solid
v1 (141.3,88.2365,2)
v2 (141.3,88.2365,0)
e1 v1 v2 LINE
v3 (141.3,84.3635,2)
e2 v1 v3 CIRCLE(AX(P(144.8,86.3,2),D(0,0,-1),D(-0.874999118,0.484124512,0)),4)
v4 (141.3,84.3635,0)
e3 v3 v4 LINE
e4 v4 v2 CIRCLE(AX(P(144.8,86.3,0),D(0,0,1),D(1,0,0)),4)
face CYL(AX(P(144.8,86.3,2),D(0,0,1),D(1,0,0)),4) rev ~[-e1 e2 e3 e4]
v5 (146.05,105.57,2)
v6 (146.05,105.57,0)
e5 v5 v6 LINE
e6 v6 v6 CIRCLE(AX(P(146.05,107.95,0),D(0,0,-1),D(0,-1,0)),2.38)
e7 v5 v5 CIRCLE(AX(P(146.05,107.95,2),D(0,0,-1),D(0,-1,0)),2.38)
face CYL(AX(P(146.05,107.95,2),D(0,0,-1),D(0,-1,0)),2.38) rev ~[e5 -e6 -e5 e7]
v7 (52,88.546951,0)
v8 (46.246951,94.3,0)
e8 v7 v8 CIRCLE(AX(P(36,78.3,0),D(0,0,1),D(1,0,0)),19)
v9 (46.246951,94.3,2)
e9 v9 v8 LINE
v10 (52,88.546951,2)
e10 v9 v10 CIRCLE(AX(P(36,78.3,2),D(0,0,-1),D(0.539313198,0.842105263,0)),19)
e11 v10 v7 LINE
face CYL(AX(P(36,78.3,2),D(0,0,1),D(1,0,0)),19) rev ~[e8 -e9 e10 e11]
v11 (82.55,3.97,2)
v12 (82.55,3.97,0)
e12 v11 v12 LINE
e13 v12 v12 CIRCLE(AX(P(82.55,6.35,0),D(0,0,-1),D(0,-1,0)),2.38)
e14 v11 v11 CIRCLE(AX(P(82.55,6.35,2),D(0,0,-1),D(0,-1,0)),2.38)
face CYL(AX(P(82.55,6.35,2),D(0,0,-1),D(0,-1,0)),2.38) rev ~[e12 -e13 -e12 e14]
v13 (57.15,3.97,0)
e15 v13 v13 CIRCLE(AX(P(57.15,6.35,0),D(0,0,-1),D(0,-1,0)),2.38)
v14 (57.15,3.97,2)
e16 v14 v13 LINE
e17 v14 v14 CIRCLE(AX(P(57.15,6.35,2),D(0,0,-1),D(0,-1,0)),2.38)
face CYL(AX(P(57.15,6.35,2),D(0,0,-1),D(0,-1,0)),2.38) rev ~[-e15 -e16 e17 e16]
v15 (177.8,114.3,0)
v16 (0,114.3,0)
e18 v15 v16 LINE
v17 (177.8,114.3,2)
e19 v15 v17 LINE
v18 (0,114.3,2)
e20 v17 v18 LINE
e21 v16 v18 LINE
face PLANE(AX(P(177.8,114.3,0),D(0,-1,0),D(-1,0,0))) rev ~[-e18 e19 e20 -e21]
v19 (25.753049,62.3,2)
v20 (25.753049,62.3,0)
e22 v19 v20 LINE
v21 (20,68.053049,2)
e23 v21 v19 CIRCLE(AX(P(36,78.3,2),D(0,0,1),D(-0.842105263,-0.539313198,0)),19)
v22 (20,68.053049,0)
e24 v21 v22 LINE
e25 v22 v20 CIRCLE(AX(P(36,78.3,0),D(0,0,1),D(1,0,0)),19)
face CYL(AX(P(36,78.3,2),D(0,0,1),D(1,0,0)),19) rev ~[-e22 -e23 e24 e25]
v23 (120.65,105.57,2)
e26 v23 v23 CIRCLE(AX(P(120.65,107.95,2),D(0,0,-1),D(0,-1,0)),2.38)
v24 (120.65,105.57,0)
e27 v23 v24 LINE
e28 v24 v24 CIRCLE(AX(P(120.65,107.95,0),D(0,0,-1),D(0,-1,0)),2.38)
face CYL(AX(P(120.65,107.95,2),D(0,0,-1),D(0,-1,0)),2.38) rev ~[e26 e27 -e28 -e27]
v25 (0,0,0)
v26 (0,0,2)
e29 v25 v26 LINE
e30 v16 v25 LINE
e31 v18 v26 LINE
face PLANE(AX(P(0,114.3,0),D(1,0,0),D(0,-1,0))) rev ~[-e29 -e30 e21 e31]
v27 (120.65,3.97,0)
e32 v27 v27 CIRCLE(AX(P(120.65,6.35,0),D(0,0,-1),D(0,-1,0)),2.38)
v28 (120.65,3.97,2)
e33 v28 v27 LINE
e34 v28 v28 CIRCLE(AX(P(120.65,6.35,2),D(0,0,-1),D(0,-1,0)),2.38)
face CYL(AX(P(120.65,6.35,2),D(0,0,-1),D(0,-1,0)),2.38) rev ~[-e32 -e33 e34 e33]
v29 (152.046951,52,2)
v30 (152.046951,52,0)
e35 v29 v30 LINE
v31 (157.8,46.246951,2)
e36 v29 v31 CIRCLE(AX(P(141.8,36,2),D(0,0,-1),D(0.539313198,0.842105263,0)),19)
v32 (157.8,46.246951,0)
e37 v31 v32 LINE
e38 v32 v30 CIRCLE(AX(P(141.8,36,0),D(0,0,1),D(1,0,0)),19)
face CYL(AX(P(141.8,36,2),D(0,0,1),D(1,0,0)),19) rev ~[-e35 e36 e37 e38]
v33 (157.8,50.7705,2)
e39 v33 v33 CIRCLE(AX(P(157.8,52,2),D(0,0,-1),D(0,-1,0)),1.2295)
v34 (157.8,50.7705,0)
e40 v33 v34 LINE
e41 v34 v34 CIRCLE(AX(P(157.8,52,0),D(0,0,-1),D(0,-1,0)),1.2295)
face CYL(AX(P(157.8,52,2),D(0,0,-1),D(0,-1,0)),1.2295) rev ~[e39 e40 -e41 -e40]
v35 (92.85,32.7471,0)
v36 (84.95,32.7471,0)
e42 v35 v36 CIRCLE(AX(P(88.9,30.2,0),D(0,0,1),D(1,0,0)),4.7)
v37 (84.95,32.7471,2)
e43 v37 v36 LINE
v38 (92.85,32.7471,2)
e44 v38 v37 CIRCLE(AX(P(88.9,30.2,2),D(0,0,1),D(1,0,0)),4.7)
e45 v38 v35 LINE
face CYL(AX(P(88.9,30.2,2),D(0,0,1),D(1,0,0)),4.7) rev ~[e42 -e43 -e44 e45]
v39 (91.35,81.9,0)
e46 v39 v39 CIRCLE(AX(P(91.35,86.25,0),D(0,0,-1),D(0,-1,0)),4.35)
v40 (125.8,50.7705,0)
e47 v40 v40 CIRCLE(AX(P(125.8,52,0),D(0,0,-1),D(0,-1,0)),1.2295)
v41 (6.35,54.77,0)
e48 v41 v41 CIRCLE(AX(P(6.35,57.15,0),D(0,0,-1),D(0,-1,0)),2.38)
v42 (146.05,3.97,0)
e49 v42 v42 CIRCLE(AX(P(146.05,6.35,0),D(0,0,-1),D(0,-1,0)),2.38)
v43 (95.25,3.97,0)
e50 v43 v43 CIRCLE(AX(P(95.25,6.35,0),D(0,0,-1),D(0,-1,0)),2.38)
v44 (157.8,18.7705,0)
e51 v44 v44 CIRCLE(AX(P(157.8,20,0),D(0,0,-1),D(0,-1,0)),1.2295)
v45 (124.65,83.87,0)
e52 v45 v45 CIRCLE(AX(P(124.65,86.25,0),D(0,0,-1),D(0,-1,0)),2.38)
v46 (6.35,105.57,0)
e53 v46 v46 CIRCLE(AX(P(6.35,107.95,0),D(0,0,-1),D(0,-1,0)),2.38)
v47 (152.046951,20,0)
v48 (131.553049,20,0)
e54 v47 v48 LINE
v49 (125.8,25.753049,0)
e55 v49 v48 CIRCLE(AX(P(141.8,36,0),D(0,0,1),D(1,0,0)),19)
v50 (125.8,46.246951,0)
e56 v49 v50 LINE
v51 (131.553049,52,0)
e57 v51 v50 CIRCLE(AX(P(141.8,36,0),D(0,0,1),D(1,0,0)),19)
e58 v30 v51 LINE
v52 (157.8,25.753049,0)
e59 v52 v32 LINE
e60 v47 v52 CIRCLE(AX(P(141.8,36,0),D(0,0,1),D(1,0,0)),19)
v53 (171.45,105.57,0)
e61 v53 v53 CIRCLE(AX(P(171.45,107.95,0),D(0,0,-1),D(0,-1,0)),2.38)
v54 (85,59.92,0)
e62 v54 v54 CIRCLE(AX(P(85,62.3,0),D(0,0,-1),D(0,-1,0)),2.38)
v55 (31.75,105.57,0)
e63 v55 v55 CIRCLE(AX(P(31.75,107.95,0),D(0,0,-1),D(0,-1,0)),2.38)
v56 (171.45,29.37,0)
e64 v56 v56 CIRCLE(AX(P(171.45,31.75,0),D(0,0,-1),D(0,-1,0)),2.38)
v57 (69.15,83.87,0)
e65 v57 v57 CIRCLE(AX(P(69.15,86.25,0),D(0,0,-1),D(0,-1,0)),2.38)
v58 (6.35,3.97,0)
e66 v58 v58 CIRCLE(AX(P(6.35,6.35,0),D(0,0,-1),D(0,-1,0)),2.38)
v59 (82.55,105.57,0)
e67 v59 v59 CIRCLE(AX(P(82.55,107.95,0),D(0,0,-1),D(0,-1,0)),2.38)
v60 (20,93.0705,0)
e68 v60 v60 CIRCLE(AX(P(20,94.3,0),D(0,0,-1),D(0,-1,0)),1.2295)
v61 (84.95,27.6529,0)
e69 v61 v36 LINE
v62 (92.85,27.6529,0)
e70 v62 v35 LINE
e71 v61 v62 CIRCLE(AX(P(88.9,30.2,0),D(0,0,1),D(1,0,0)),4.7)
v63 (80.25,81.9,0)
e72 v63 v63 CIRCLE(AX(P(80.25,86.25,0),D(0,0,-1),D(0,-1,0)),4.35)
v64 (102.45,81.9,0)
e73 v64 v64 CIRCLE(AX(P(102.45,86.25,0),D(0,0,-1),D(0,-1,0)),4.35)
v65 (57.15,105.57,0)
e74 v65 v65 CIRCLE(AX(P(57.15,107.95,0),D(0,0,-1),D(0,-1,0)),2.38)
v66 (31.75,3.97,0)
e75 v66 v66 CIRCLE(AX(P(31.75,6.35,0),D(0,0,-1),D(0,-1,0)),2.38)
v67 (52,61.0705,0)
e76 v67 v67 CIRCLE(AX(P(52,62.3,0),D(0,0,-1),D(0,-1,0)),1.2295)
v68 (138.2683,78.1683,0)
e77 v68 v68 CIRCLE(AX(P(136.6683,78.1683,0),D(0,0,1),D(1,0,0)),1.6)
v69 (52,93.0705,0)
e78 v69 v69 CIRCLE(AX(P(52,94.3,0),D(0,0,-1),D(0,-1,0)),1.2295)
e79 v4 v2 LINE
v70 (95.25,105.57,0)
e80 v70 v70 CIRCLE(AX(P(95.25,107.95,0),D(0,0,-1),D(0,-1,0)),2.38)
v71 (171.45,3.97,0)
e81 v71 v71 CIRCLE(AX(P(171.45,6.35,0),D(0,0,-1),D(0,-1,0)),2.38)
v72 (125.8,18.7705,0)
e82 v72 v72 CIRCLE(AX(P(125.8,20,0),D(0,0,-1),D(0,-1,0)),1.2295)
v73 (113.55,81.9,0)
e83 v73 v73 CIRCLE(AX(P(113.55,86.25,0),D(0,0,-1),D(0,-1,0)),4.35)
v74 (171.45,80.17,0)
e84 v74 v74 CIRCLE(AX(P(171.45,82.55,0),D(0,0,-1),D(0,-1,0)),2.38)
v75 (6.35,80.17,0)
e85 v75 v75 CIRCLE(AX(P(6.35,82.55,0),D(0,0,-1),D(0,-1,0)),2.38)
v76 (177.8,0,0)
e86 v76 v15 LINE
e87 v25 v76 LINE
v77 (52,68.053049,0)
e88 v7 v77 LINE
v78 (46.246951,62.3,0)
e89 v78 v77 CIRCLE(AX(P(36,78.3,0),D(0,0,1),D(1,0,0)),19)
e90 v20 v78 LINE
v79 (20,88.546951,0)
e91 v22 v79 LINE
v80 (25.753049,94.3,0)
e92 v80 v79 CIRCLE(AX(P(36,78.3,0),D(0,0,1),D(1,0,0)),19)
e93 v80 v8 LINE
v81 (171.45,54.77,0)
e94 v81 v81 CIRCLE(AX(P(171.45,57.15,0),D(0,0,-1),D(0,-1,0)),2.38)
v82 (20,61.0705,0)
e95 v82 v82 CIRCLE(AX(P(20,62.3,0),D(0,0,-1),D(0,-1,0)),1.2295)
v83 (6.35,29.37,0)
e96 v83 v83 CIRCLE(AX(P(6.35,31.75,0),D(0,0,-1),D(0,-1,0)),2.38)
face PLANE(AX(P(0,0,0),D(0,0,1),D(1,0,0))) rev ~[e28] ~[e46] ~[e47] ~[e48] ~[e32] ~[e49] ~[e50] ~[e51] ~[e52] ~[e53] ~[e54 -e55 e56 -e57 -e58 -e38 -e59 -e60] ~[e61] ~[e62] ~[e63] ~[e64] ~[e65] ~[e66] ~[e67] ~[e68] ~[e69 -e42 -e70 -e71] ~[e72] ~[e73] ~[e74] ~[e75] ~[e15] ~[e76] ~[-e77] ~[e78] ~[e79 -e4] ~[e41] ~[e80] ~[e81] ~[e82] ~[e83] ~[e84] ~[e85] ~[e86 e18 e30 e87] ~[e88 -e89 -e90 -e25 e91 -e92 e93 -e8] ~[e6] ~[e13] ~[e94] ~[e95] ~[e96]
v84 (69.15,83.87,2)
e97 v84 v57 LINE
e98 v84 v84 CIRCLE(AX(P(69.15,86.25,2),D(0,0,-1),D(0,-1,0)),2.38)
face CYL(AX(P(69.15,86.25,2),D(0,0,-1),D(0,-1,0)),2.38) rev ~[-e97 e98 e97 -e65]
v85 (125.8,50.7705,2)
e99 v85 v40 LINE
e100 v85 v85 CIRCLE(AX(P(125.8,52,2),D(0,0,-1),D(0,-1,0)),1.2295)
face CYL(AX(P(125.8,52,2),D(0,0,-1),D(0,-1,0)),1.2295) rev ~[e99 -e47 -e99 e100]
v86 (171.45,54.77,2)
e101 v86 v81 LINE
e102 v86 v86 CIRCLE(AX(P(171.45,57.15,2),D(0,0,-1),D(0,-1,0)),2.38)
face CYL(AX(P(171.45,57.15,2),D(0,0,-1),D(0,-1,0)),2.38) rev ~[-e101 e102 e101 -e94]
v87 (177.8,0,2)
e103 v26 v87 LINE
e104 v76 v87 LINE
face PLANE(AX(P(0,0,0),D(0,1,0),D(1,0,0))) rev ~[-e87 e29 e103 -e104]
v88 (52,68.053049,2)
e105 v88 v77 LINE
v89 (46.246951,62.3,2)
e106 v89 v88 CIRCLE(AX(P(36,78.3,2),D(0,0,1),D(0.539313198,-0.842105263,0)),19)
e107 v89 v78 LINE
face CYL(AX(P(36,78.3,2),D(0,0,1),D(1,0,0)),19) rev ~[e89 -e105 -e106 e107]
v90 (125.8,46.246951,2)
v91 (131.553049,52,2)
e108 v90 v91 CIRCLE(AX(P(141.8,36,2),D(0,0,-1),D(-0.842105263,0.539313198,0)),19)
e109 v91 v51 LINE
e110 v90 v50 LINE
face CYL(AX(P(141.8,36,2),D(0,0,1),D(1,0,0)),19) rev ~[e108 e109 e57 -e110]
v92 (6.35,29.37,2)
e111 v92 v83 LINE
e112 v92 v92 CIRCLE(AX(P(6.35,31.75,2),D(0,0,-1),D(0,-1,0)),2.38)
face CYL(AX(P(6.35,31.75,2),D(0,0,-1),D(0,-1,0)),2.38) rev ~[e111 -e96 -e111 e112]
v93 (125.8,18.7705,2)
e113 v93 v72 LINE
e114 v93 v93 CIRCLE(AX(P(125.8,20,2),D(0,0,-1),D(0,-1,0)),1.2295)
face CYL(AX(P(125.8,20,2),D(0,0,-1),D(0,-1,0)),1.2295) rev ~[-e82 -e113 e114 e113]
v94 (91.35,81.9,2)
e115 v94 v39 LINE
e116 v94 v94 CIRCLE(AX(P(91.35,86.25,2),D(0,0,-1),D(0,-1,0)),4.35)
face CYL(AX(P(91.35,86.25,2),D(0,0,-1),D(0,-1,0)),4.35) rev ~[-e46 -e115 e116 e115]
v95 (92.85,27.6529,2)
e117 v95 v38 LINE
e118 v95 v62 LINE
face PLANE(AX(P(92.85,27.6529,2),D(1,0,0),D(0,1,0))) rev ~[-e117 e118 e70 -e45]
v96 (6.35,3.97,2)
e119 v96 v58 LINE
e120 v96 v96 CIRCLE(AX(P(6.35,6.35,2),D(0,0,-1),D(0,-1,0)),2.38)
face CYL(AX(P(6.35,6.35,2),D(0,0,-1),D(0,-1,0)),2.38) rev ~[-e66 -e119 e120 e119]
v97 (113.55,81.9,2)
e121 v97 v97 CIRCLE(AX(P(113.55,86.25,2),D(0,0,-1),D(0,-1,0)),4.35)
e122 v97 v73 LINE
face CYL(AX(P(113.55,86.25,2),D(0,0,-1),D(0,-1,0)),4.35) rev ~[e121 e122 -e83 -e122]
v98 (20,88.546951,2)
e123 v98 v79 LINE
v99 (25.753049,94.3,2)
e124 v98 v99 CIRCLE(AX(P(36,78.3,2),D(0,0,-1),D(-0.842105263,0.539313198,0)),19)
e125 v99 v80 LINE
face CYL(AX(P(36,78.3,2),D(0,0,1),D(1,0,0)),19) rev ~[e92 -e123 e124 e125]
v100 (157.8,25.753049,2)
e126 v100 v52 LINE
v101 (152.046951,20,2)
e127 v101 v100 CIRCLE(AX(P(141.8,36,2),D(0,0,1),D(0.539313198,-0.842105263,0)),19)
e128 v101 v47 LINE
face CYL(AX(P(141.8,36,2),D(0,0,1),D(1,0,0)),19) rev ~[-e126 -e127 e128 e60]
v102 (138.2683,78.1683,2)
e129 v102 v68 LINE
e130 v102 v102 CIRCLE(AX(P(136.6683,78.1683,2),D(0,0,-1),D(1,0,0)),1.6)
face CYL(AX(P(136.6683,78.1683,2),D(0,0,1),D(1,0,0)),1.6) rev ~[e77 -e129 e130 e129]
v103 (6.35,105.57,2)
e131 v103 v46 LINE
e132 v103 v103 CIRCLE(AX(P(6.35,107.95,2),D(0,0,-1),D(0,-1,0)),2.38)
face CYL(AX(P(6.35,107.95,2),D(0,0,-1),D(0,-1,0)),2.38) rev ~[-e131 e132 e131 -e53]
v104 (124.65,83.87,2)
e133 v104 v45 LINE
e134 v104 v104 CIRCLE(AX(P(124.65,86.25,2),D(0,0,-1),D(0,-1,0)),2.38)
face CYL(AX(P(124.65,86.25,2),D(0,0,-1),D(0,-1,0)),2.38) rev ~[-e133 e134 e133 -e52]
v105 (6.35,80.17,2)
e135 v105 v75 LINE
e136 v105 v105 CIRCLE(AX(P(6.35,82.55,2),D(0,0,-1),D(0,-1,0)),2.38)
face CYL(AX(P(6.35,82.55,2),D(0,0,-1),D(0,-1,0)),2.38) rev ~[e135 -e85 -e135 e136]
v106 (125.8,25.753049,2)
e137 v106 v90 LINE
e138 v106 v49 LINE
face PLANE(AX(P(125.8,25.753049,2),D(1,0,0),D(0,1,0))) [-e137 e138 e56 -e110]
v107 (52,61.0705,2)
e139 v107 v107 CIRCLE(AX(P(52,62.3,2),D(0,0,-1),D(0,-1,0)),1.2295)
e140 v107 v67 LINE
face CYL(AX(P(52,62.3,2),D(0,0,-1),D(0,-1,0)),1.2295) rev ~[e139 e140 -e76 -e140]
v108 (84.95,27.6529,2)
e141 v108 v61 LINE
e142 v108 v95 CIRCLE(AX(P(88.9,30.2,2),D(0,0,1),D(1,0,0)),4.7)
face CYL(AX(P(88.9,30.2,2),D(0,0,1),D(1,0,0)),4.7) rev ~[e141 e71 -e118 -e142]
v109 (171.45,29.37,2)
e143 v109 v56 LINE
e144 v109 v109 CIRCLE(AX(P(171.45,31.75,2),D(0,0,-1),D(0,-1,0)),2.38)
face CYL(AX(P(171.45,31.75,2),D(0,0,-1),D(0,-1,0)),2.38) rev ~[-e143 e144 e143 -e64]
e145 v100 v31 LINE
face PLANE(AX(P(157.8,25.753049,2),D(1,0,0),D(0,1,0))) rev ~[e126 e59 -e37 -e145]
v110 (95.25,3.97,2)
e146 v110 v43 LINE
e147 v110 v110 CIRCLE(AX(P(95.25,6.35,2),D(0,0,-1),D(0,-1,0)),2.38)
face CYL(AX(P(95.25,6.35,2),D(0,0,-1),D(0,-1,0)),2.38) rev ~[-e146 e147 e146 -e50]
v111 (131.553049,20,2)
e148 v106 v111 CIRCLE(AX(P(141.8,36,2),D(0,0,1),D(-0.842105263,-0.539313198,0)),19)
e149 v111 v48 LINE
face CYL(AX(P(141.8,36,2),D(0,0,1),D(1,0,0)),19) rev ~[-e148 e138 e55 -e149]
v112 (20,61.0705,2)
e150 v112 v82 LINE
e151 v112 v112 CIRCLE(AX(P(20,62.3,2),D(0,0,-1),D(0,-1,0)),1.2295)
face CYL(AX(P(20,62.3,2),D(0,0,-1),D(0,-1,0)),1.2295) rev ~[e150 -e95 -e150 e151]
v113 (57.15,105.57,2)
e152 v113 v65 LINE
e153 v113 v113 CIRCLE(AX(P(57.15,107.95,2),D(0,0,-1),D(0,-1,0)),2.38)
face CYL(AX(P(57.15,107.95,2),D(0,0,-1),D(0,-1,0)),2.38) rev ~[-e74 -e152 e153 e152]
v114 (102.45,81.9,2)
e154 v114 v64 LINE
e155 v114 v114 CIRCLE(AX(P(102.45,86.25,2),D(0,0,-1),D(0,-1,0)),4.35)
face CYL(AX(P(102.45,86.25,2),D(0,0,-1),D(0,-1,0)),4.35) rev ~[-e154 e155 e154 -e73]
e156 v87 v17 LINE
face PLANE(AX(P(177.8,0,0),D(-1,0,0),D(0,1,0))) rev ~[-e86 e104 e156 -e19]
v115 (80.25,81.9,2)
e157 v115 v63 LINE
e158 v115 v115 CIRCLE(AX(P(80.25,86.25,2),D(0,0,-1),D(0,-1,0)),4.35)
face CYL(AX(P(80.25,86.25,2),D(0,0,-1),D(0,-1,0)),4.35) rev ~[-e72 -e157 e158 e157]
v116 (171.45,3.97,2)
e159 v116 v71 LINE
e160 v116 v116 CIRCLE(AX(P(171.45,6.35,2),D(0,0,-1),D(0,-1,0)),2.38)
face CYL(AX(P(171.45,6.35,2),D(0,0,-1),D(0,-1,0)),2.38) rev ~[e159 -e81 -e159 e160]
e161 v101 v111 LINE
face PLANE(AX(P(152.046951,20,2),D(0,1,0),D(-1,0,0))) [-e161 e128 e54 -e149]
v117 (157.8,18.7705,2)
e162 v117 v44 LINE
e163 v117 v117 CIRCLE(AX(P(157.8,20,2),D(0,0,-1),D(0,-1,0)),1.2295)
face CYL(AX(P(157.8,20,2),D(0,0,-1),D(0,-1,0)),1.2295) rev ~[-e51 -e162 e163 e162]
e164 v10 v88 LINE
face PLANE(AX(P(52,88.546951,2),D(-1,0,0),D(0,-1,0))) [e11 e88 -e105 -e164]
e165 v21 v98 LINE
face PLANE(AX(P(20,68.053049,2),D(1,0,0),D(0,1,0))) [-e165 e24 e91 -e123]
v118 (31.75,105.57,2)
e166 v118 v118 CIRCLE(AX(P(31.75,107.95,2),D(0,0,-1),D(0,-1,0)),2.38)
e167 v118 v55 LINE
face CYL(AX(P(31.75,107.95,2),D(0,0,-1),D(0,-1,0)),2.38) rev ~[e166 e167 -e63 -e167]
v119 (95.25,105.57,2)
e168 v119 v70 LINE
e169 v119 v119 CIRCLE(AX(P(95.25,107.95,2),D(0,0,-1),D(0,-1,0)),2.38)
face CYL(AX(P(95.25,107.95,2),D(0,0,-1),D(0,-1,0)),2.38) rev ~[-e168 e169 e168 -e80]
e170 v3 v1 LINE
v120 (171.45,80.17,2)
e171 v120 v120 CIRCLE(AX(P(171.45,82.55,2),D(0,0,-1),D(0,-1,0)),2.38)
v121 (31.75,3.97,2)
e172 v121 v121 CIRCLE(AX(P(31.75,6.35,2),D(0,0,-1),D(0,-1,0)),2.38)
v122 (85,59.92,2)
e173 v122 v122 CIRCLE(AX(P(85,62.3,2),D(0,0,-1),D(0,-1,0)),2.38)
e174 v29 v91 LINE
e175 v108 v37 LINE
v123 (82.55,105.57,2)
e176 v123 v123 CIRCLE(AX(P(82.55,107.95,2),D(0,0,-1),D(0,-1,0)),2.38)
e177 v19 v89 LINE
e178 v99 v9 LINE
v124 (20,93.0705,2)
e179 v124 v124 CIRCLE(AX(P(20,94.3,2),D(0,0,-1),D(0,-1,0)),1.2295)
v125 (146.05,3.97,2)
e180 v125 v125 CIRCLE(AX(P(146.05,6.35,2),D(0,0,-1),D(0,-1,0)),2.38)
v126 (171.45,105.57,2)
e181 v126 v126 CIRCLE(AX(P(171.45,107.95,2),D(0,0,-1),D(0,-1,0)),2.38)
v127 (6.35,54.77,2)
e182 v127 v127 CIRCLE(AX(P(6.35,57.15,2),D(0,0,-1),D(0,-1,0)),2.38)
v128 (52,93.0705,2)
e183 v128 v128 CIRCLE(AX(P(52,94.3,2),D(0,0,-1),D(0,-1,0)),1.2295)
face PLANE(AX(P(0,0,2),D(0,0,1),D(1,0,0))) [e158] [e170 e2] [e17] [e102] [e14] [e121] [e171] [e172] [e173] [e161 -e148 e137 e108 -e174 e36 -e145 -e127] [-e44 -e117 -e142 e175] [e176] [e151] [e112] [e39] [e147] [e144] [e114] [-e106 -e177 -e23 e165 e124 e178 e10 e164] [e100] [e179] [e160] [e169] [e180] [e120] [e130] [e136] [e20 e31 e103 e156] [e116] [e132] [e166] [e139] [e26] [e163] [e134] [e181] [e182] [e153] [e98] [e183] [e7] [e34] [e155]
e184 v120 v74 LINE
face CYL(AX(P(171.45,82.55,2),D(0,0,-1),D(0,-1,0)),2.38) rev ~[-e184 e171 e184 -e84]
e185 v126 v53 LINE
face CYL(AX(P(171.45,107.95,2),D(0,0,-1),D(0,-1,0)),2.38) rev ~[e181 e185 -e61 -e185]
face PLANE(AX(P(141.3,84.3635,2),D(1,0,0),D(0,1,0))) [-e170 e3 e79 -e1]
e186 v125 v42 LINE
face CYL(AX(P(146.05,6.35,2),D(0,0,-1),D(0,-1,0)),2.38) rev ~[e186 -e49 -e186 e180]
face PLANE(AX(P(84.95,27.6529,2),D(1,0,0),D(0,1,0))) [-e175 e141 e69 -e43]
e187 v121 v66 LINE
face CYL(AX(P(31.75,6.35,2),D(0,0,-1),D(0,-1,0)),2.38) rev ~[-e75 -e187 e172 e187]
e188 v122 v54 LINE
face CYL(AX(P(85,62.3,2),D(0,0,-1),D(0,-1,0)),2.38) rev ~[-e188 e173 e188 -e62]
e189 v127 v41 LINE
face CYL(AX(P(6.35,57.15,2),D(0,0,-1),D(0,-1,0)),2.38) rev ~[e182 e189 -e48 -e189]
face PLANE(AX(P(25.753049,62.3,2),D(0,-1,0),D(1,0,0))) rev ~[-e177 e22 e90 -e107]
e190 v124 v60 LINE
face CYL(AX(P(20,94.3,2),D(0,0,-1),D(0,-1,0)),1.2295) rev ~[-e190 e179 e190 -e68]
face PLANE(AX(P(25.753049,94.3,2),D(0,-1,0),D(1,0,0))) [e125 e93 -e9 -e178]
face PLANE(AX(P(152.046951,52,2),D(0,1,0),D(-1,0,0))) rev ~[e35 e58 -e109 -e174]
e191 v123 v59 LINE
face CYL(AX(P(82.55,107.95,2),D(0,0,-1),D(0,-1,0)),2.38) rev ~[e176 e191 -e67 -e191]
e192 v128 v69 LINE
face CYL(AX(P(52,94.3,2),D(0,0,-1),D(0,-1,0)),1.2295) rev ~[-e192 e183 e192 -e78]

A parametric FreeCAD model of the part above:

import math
import FreeCAD as App
import Part
import Sketcher

V = App.Vector

doc = App.newDocument("Part")
params = doc.addObject("Spreadsheet::Sheet", "Params")
for row, (alias, value) in enumerate([
    ("sketch1_width", "177.8 mm"),
    ("sketch1_height", "114.3 mm"),
    ("pad1_length", "2 mm"),
    ("sketch2_diameter", "4.76 mm"),
    ("hole_diameter", "4.76 mm"),
    ("sketch3_diameter", "8.7 mm"),
    ("hole2_diameter", "8.7 mm"),
    ("sketch4_diameter", "4.76 mm"),
    ("hole3_diameter", "4.76 mm"),
    ("sketch5_radius", "4.7 mm"),
    ("sketch6_radius", "4 mm"),
    ("sketch6_diameter", "3.2 mm"),
    ("hole4_diameter", "2.459 mm"),
    ("hole5_diameter", "2.459 mm"),
    ("sketch9_diameter", "4.76 mm"),
    ("hole6_diameter", "4.76 mm"),
    ("sketch10_radius", "19 mm"),
    ("pocket3_length", "10 mm"),
], start=1):
    params.set(f"A{row}", alias)
    params.set(f"B{row}", "=" + value)
    params.setAlias(f"B{row}", alias)

body = doc.addObject("PartDesign::Body", "Body")

sketch1 = body.newObject("Sketcher::SketchObject", "Sketch")
sketch1.AttachmentSupport = (doc.getObject("XY_Plane"), [""])
sketch1.MapMode = "FlatFace"
sketch1.addGeometry([
    Part.LineSegment(V(0, 114.3, 0), V(0, 0, 0)),
    Part.LineSegment(V(0, 0, 0), V(177.8, 0, 0)),
    Part.LineSegment(V(177.8, 0, 0), V(177.8, 114.3, 0)),
    Part.LineSegment(V(177.8, 114.3, 0), V(0, 114.3, 0)),
], False)
sketch1.addConstraint([
    Sketcher.Constraint("Coincident", 0, 2, 1, 1),
    Sketcher.Constraint("Coincident", 1, 2, 2, 1),
    Sketcher.Constraint("Coincident", 2, 2, 3, 1),
    Sketcher.Constraint("Coincident", 3, 2, 0, 1),
    Sketcher.Constraint("Vertical", 0),
    Sketcher.Constraint("Horizontal", 1),
    Sketcher.Constraint("Vertical", 2),
    Sketcher.Constraint("Horizontal", 3),
    Sketcher.Constraint("Coincident", 0, 2, -1, 1),
    Sketcher.Constraint("DistanceX", 1, 1, 1, 2, 177.8),
    Sketcher.Constraint("DistanceY", 0, 2, 0, 1, 114.3),
])
sketch1.setExpression("Constraints[9]", "Params.sketch1_width")
sketch1.setExpression("Constraints[10]", "Params.sketch1_height")
pad1 = body.newObject("PartDesign::Pad", "Pad")
pad1.Profile = sketch1
pad1.setExpression("Length", "Params.pad1_length")

sketch2 = body.newObject("Sketcher::SketchObject", "Sketch001")
sketch2.AttachmentSupport = (doc.getObject("XY_Plane"), [""])
sketch2.MapMode = "FlatFace"
sketch2.AttachmentOffset = App.Placement(V(0, 0, 2), App.Rotation())
sketch2.addGeometry([
    Part.Circle(V(6.35, 107.95, 0), V(0, 0, 1), 2.38),
    Part.Circle(V(6.35, 82.55, 0), V(0, 0, 1), 2.38),
    Part.Circle(V(6.35, 57.15, 0), V(0, 0, 1), 2.38),
    Part.Circle(V(6.35, 31.75, 0), V(0, 0, 1), 2.38),
    Part.Circle(V(6.35, 6.35, 0), V(0, 0, 1), 2.38),
    Part.Circle(V(31.75, 6.35, 0), V(0, 0, 1), 2.38),
    Part.Circle(V(57.15, 6.35, 0), V(0, 0, 1), 2.38),
    Part.Circle(V(82.55, 6.35, 0), V(0, 0, 1), 2.38),
    Part.Circle(V(95.25, 6.35, 0), V(0, 0, 1), 2.38),
    Part.Circle(V(146.05, 6.35, 0), V(0, 0, 1), 2.38),
    Part.Circle(V(120.65, 6.35, 0), V(0, 0, 1), 2.38),
    Part.Circle(V(171.45, 6.35, 0), V(0, 0, 1), 2.38),
    Part.Circle(V(171.45, 31.75, 0), V(0, 0, 1), 2.38),
    Part.Circle(V(171.45, 57.15, 0), V(0, 0, 1), 2.38),
    Part.Circle(V(171.45, 82.55, 0), V(0, 0, 1), 2.38),
    Part.Circle(V(171.45, 107.95, 0), V(0, 0, 1), 2.38),
    Part.Circle(V(120.65, 107.95, 0), V(0, 0, 1), 2.38),
    Part.Circle(V(146.05, 107.95, 0), V(0, 0, 1), 2.38),
    Part.Circle(V(95.25, 107.95, 0), V(0, 0, 1), 2.38),
    Part.Circle(V(82.55, 107.95, 0), V(0, 0, 1), 2.38),
    Part.Circle(V(57.15, 107.95, 0), V(0, 0, 1), 2.38),
    Part.Circle(V(31.75, 107.95, 0), V(0, 0, 1), 2.38),
], False)
sketch2.addConstraint([
    Sketcher.Constraint("Equal", 0, 1),
    Sketcher.Constraint("Equal", 1, 2),
    Sketcher.Constraint("Equal", 2, 3),
    Sketcher.Constraint("Equal", 3, 4),
    Sketcher.Constraint("Equal", 4, 5),
    Sketcher.Constraint("Equal", 5, 6),
    Sketcher.Constraint("Equal", 6, 7),
    Sketcher.Constraint("Equal", 7, 8),
    Sketcher.Constraint("Equal", 8, 9),
    Sketcher.Constraint("Equal", 9, 10),
    Sketcher.Constraint("Equal", 10, 11),
    Sketcher.Constraint("Equal", 11, 12),
    Sketcher.Constraint("Equal", 12, 13),
    Sketcher.Constraint("Equal", 13, 14),
    Sketcher.Constraint("Equal", 14, 15),
    Sketcher.Constraint("Equal", 15, 16),
    Sketcher.Constraint("Equal", 16, 17),
    Sketcher.Constraint("Equal", 17, 18),
    Sketcher.Constraint("Equal", 18, 19),
    Sketcher.Constraint("Equal", 19, 20),
    Sketcher.Constraint("Equal", 20, 21),
    Sketcher.Constraint("Horizontal", 4, 3, 5, 3),
    Sketcher.Constraint("Horizontal", 5, 3, 6, 3),
    Sketcher.Constraint("Horizontal", 6, 3, 7, 3),
    Sketcher.Constraint("Horizontal", 7, 3, 8, 3),
    Sketcher.Constraint("Horizontal", 8, 3, 9, 3),
    Sketcher.Constraint("Horizontal", 9, 3, 10, 3),
    Sketcher.Constraint("Horizontal", 10, 3, 11, 3),
    Sketcher.Constraint("Horizontal", 3, 3, 12, 3),
    Sketcher.Constraint("Horizontal", 2, 3, 13, 3),
    Sketcher.Constraint("Horizontal", 1, 3, 14, 3),
    Sketcher.Constraint("Horizontal", 0, 3, 15, 3),
    Sketcher.Constraint("Horizontal", 15, 3, 16, 3),
    Sketcher.Constraint("Horizontal", 16, 3, 17, 3),
    Sketcher.Constraint("Horizontal", 17, 3, 18, 3),
    Sketcher.Constraint("Horizontal", 18, 3, 19, 3),
    Sketcher.Constraint("Horizontal", 19, 3, 20, 3),
    Sketcher.Constraint("Horizontal", 20, 3, 21, 3),
    Sketcher.Constraint("Vertical", 0, 3, 1, 3),
    Sketcher.Constraint("Vertical", 1, 3, 2, 3),
    Sketcher.Constraint("Vertical", 2, 3, 3, 3),
    Sketcher.Constraint("Vertical", 3, 3, 4, 3),
    Sketcher.Constraint("Vertical", 11, 3, 12, 3),
    Sketcher.Constraint("Vertical", 12, 3, 13, 3),
    Sketcher.Constraint("Vertical", 13, 3, 14, 3),
    Sketcher.Constraint("Vertical", 14, 3, 15, 3),
    Sketcher.Constraint("Vertical", 10, 3, 16, 3),
    Sketcher.Constraint("Vertical", 9, 3, 17, 3),
    Sketcher.Constraint("Vertical", 8, 3, 18, 3),
    Sketcher.Constraint("Vertical", 7, 3, 19, 3),
    Sketcher.Constraint("Vertical", 6, 3, 20, 3),
    Sketcher.Constraint("Vertical", 5, 3, 21, 3),
    Sketcher.Constraint("Diameter", 0, 4.76),
    Sketcher.Constraint("DistanceY", 1, 3, 0, 3, 25.4),
    Sketcher.Constraint("DistanceY", 2, 3, 1, 3, 25.4),
    Sketcher.Constraint("DistanceY", 3, 3, 2, 3, 25.4),
    Sketcher.Constraint("DistanceY", 4, 3, 3, 3, 25.4),
    Sketcher.Constraint("DistanceX", 4, 3, 5, 3, 25.4),
    Sketcher.Constraint("DistanceX", 5, 3, 6, 3, 25.4),
    Sketcher.Constraint("DistanceX", 6, 3, 7, 3, 25.4),
    Sketcher.Constraint("DistanceX", 7, 3, 8, 3, 12.7),
    Sketcher.Constraint("DistanceX", 8, 3, 9, 3, 50.8),
    Sketcher.Constraint("DistanceX", 8, 3, 10, 3, 25.4),
    Sketcher.Constraint("DistanceX", 9, 3, 11, 3, 25.4),
    Sketcher.Constraint("DistanceX", -1, 1, 0, 3, 6.35),
    Sketcher.Constraint("DistanceY", -1, 1, 0, 3, 107.95),
])
sketch2.setExpression("Constraints[52]", "Params.sketch2_diameter")
doc.recompute()
hole = body.newObject("PartDesign::Hole", "Hole")
hole.Profile = sketch2
hole.ThreadType = "None"
hole.setExpression("Diameter", "Params.hole_diameter")
hole.DepthType = "ThroughAll"

sketch3 = body.newObject("Sketcher::SketchObject", "Sketch002")
sketch3.AttachmentSupport = (doc.getObject("XY_Plane"), [""])
sketch3.MapMode = "FlatFace"
sketch3.AttachmentOffset = App.Placement(V(0, 0, 2), App.Rotation())
sketch3.addGeometry([
    Part.Circle(V(91.35, 86.25, 0), V(0, 0, 1), 4.35),
    Part.Circle(V(102.45, 86.25, 0), V(0, 0, 1), 4.35),
    Part.Circle(V(113.55, 86.25, 0), V(0, 0, 1), 4.35),
    Part.Circle(V(80.25, 86.25, 0), V(0, 0, 1), 4.35),
], False)
sketch3.addConstraint([
    Sketcher.Constraint("Equal", 0, 1),
    Sketcher.Constraint("Equal", 1, 2),
    Sketcher.Constraint("Equal", 2, 3),
    Sketcher.Constraint("Horizontal", 0, 3, 1, 3),
    Sketcher.Constraint("Horizontal", 1, 3, 2, 3),
    Sketcher.Constraint("Horizontal", 2, 3, 3, 3),
    Sketcher.Constraint("Diameter", 0, 8.7),
    Sketcher.Constraint("DistanceX", 0, 3, 1, 3, 11.1),
    Sketcher.Constraint("DistanceX", 1, 3, 2, 3, 11.1),
    Sketcher.Constraint("DistanceX", 3, 3, 0, 3, 11.1),
    Sketcher.Constraint("DistanceX", -1, 1, 0, 3, 91.35),
    Sketcher.Constraint("DistanceY", -1, 1, 0, 3, 86.25),
])
sketch3.setExpression("Constraints[6]", "Params.sketch3_diameter")
doc.recompute()
hole2 = body.newObject("PartDesign::Hole", "Hole001")
hole2.Profile = sketch3
hole2.ThreadType = "None"
hole2.setExpression("Diameter", "Params.hole2_diameter")
hole2.DepthType = "ThroughAll"

sketch4 = body.newObject("Sketcher::SketchObject", "Sketch003")
sketch4.AttachmentSupport = (doc.getObject("XY_Plane"), [""])
sketch4.MapMode = "FlatFace"
sketch4.AttachmentOffset = App.Placement(V(0, 0, 2), App.Rotation())
sketch4.addGeometry([
    Part.Circle(V(124.65, 86.25, 0), V(0, 0, 1), 2.38),
    Part.Circle(V(69.15, 86.25, 0), V(0, 0, 1), 2.38),
], False)
sketch4.addConstraint([
    Sketcher.Constraint("Equal", 0, 1),
    Sketcher.Constraint("Horizontal", 0, 3, 1, 3),
    Sketcher.Constraint("Diameter", 0, 4.76),
    Sketcher.Constraint("DistanceX", 1, 3, 0, 3, 55.5),
    Sketcher.Constraint("DistanceX", -1, 1, 0, 3, 124.65),
    Sketcher.Constraint("DistanceY", -1, 1, 0, 3, 86.25),
])
sketch4.setExpression("Constraints[2]", "Params.sketch4_diameter")
doc.recompute()
hole3 = body.newObject("PartDesign::Hole", "Hole002")
hole3.Profile = sketch4
hole3.ThreadType = "None"
hole3.setExpression("Diameter", "Params.hole3_diameter")
hole3.DepthType = "ThroughAll"

sketch5 = body.newObject("Sketcher::SketchObject", "Sketch004")
sketch5.AttachmentSupport = (doc.getObject("XY_Plane"), [""])
sketch5.MapMode = "FlatFace"
sketch5.AttachmentOffset = App.Placement(V(0, 0, 2), App.Rotation())
sketch5.addGeometry([
    Part.LineSegment(V(92.85, 27.6529, 0), V(92.85, 32.7471, 0)),
    Part.ArcOfCircle(Part.Circle(V(88.9, 30.2, 0), V(0, 0, 1), 4.7), math.radians(32.815357), math.radians(147.184643)),
    Part.LineSegment(V(84.95, 32.7471, 0), V(84.95, 27.6529, 0)),
    Part.ArcOfCircle(Part.Circle(V(88.9, 30.2, 0), V(0, 0, 1), 4.7), math.radians(-147.184643), math.radians(-32.815357)),
], False)
sketch5.addConstraint([
    Sketcher.Constraint("Coincident", 0, 2, 1, 1),
    Sketcher.Constraint("Coincident", 1, 2, 2, 1),
    Sketcher.Constraint("Coincident", 2, 2, 3, 1),
    Sketcher.Constraint("Coincident", 3, 2, 0, 1),
    Sketcher.Constraint("Vertical", 0),
    Sketcher.Constraint("Vertical", 2),
    Sketcher.Constraint("Coincident", 3, 3, 1, 3),
    Sketcher.Constraint("Equal", 1, 3),
    Sketcher.Constraint("Horizontal", 0, 2, 1, 2),
    Sketcher.Constraint("Radius", 1, 4.7),
    Sketcher.Constraint("DistanceY", -1, 1, 1, 3, 30.2),
    Sketcher.Constraint("DistanceX", 1, 2, 0, 2, 7.9),
    Sketcher.Constraint("DistanceX", -1, 1, 1, 3, 88.9),
])
sketch5.setExpression("Constraints[9]", "Params.sketch5_radius")
pocket1 = body.newObject("PartDesign::Pocket", "Pocket")
pocket1.Profile = sketch5
pocket1.Type = "ThroughAll"

sketch6 = body.newObject("Sketcher::SketchObject", "Sketch005")
sketch6.AttachmentSupport = (doc.getObject("XY_Plane"), [""])
sketch6.MapMode = "FlatFace"
sketch6.AttachmentOffset = App.Placement(V(0, 0, 2), App.Rotation())
sketch6.addGeometry([
    Part.Circle(V(136.6683, 78.1683, 0), V(0, 0, 1), 1.6),
    Part.LineSegment(V(141.3, 88.2365, 0), V(141.3, 84.3635, 0)),
    Part.ArcOfCircle(Part.Circle(V(144.8, 86.3, 0), V(0, 0, 1), 4), math.radians(-151.044871), math.radians(151.044871)),
], False)
sketch6.addConstraint([
    Sketcher.Constraint("Coincident", 1, 1, 2, 2),
    Sketcher.Constraint("Coincident", 2, 1, 1, 2),
    Sketcher.Constraint("Vertical", 1),
    Sketcher.Constraint("Radius", 2, 4.0),
    Sketcher.Constraint("Diameter", 0, 3.2),
    Sketcher.Constraint("DistanceX", -1, 1, 2, 3, 144.8),
    Sketcher.Constraint("DistanceY", -1, 1, 2, 3, 86.3),
    Sketcher.Constraint("DistanceX", -1, 1, 1, 1, 141.3),
    Sketcher.Constraint("DistanceX", -1, 1, 0, 3, 136.6683),
    Sketcher.Constraint("DistanceY", -1, 1, 0, 3, 78.1683),
])
sketch6.setExpression("Constraints[3]", "Params.sketch6_radius")
sketch6.setExpression("Constraints[4]", "Params.sketch6_diameter")
pocket2 = body.newObject("PartDesign::Pocket", "Pocket001")
pocket2.Profile = sketch6
pocket2.Type = "ThroughAll"

sketch7 = body.newObject("Sketcher::SketchObject", "Sketch006")
sketch7.AttachmentSupport = (doc.getObject("XY_Plane"), [""])
sketch7.MapMode = "FlatFace"
sketch7.AttachmentOffset = App.Placement(V(0, 0, 2), App.Rotation())
sketch7.addGeometry([
    Part.Circle(V(125.8, 52, 0), V(0, 0, 1), 1.2295),
    Part.Circle(V(157.8, 52, 0), V(0, 0, 1), 1.2295),
    Part.Circle(V(157.8, 20, 0), V(0, 0, 1), 1.2295),
    Part.Circle(V(125.8, 20, 0), V(0, 0, 1), 1.2295),
], False)
sketch7.addConstraint([
    Sketcher.Constraint("Equal", 0, 1),
    Sketcher.Constraint("Equal", 1, 2),
    Sketcher.Constraint("Equal", 2, 3),
    Sketcher.Constraint("Horizontal", 0, 3, 1, 3),
    Sketcher.Constraint("Horizontal", 2, 3, 3, 3),
    Sketcher.Constraint("Vertical", 1, 3, 2, 3),
    Sketcher.Constraint("Vertical", 0, 3, 3, 3),
    Sketcher.Constraint("Diameter", 0, 2.459),
    Sketcher.Constraint("DistanceY", -1, 1, 0, 3, 52.0),
    Sketcher.Constraint("DistanceY", -1, 1, 2, 3, 20.0),
    Sketcher.Constraint("DistanceX", 0, 3, 1, 3, 32.0),
    Sketcher.Constraint("DistanceX", -1, 1, 0, 3, 125.8),
])
doc.recompute()
hole4 = body.newObject("PartDesign::Hole", "Hole003")
hole4.Profile = sketch7
hole4.ThreadType = "None"
hole4.setExpression("Diameter", "Params.hole4_diameter")
hole4.DepthType = "ThroughAll"

sketch8 = body.newObject("Sketcher::SketchObject", "Sketch007")
sketch8.AttachmentSupport = (doc.getObject("XY_Plane"), [""])
sketch8.MapMode = "FlatFace"
sketch8.AttachmentOffset = App.Placement(V(0, 0, 2), App.Rotation())
sketch8.addGeometry([
    Part.Circle(V(20, 94.3, 0), V(0, 0, 1), 1.2295),
    Part.Circle(V(52, 94.3, 0), V(0, 0, 1), 1.2295),
    Part.Circle(V(52, 62.3, 0), V(0, 0, 1), 1.2295),
    Part.Circle(V(20, 62.3, 0), V(0, 0, 1), 1.2295),
], False)
sketch8.addConstraint([
    Sketcher.Constraint("Equal", 0, 1),
    Sketcher.Constraint("Equal", 1, 2),
    Sketcher.Constraint("Equal", 2, 3),
    Sketcher.Constraint("Horizontal", 0, 3, 1, 3),
    Sketcher.Constraint("Horizontal", 2, 3, 3, 3),
    Sketcher.Constraint("Vertical", 1, 3, 2, 3),
    Sketcher.Constraint("Vertical", 0, 3, 3, 3),
    Sketcher.Constraint("Diameter", 0, 2.459),
    Sketcher.Constraint("DistanceX", -1, 1, 0, 3, 20.0),
    Sketcher.Constraint("DistanceX", -1, 1, 1, 3, 52.0),
    Sketcher.Constraint("DistanceY", 2, 3, 1, 3, 32.0),
    Sketcher.Constraint("DistanceY", -1, 1, 0, 3, 94.3),
])
doc.recompute()
hole5 = body.newObject("PartDesign::Hole", "Hole004")
hole5.Profile = sketch8
hole5.ThreadType = "None"
hole5.setExpression("Diameter", "Params.hole5_diameter")
hole5.DepthType = "ThroughAll"

sketch9 = body.newObject("Sketcher::SketchObject", "Sketch008")
sketch9.AttachmentSupport = (doc.getObject("XY_Plane"), [""])
sketch9.MapMode = "FlatFace"
sketch9.AttachmentOffset = App.Placement(V(0, 0, 2), App.Rotation())
sketch9.addGeometry(Part.Circle(V(85, 62.3, 0), V(0, 0, 1), 2.38), False)
sketch9.addConstraint([
    Sketcher.Constraint("Diameter", 0, 4.76),
    Sketcher.Constraint("DistanceX", -1, 1, 0, 3, 85.0),
    Sketcher.Constraint("DistanceY", -1, 1, 0, 3, 62.3),
])
sketch9.setExpression("Constraints[0]", "Params.sketch9_diameter")
doc.recompute()
hole6 = body.newObject("PartDesign::Hole", "Hole005")
hole6.Profile = sketch9
hole6.ThreadType = "None"
hole6.setExpression("Diameter", "Params.hole6_diameter")
hole6.DepthType = "ThroughAll"

sketch10 = body.newObject("Sketcher::SketchObject", "Sketch009")
sketch10.AttachmentSupport = (doc.getObject("XY_Plane"), [""])
sketch10.MapMode = "FlatFace"
sketch10.AttachmentOffset = App.Placement(V(0, 0, 2), App.Rotation())
sketch10.addGeometry([
    Part.LineSegment(V(46.246951, 94.3, 0), V(25.753049, 94.3, 0)),
    Part.ArcOfCircle(Part.Circle(V(36, 78.3, 0), V(0, 0, 1), 19), math.radians(122.636898), math.radians(147.363102)),
    Part.LineSegment(V(20, 88.546951, 0), V(20, 68.053049, 0)),
    Part.ArcOfCircle(Part.Circle(V(36, 78.3, 0), V(0, 0, 1), 19), math.radians(-147.363102), math.radians(-122.636898)),
    Part.LineSegment(V(25.753049, 62.3, 0), V(46.246951, 62.3, 0)),
    Part.ArcOfCircle(Part.Circle(V(36, 78.3, 0), V(0, 0, 1), 19), math.radians(-57.363102), math.radians(-32.636898)),
    Part.LineSegment(V(52, 68.053049, 0), V(52, 88.546951, 0)),
    Part.ArcOfCircle(Part.Circle(V(36, 78.3, 0), V(0, 0, 1), 19), math.radians(32.636898), math.radians(57.363102)),
    Part.LineSegment(V(152.046951, 52, 0), V(131.553049, 52, 0)),
    Part.ArcOfCircle(Part.Circle(V(141.8, 36, 0), V(0, 0, 1), 19), math.radians(122.636898), math.radians(147.363102)),
    Part.LineSegment(V(125.8, 46.246951, 0), V(125.8, 25.753049, 0)),
    Part.ArcOfCircle(Part.Circle(V(141.8, 36, 0), V(0, 0, 1), 19), math.radians(-147.363102), math.radians(-122.636898)),
    Part.LineSegment(V(131.553049, 20, 0), V(152.046951, 20, 0)),
    Part.ArcOfCircle(Part.Circle(V(141.8, 36, 0), V(0, 0, 1), 19), math.radians(-57.363102), math.radians(-32.636898)),
    Part.LineSegment(V(157.8, 25.753049, 0), V(157.8, 46.246951, 0)),
    Part.ArcOfCircle(Part.Circle(V(141.8, 36, 0), V(0, 0, 1), 19), math.radians(32.636898), math.radians(57.363102)),
], False)
sketch10.addConstraint([
    Sketcher.Constraint("Coincident", 0, 2, 1, 1),
    Sketcher.Constraint("Coincident", 1, 2, 2, 1),
    Sketcher.Constraint("Coincident", 2, 2, 3, 1),
    Sketcher.Constraint("Coincident", 3, 2, 4, 1),
    Sketcher.Constraint("Coincident", 4, 2, 5, 1),
    Sketcher.Constraint("Coincident", 5, 2, 6, 1),
    Sketcher.Constraint("Coincident", 6, 2, 7, 1),
    Sketcher.Constraint("Coincident", 7, 2, 0, 1),
    Sketcher.Constraint("Coincident", 8, 2, 9, 1),
    Sketcher.Constraint("Coincident", 9, 2, 10, 1),
    Sketcher.Constraint("Coincident", 10, 2, 11, 1),
    Sketcher.Constraint("Coincident", 11, 2, 12, 1),
    Sketcher.Constraint("Coincident", 12, 2, 13, 1),
    Sketcher.Constraint("Coincident", 13, 2, 14, 1),
    Sketcher.Constraint("Coincident", 14, 2, 15, 1),
    Sketcher.Constraint("Coincident", 15, 2, 8, 1),
    Sketcher.Constraint("Horizontal", 0),
    Sketcher.Constraint("Vertical", 2),
    Sketcher.Constraint("Horizontal", 4),
    Sketcher.Constraint("Vertical", 6),
    Sketcher.Constraint("Horizontal", 8),
    Sketcher.Constraint("Vertical", 10),
    Sketcher.Constraint("Horizontal", 12),
    Sketcher.Constraint("Vertical", 14),
    Sketcher.Constraint("Coincident", 3, 3, 1, 3),
    Sketcher.Constraint("Coincident", 5, 3, 1, 3),
    Sketcher.Constraint("Coincident", 7, 3, 1, 3),
    Sketcher.Constraint("Coincident", 11, 3, 9, 3),
    Sketcher.Constraint("Coincident", 13, 3, 9, 3),
    Sketcher.Constraint("Coincident", 15, 3, 9, 3),
    Sketcher.Constraint("Equal", 1, 3),
    Sketcher.Constraint("Equal", 3, 5),
    Sketcher.Constraint("Equal", 5, 7),
    Sketcher.Constraint("Equal", 7, 9),
    Sketcher.Constraint("Equal", 9, 11),
    Sketcher.Constraint("Equal", 11, 13),
    Sketcher.Constraint("Equal", 13, 15),
    Sketcher.Constraint("Horizontal", 2, 2, 5, 2),
    Sketcher.Constraint("Horizontal", 10, 2, 13, 2),
    Sketcher.Constraint("Vertical", 0, 2, 3, 2),
    Sketcher.Constraint("Vertical", 8, 2, 11, 2),
    Sketcher.Constraint("Equal", 4, 8),
    Sketcher.Constraint("Equal", 12, 2),
    Sketcher.Constraint("Equal", 6, 10),
    Sketcher.Constraint("Radius", 1, 19.0),
    Sketcher.Constraint("DistanceX", -1, 1, 1, 3, 36.0),
    Sketcher.Constraint("DistanceY", -1, 1, 9, 3, 36.0),
    Sketcher.Constraint("DistanceX", -1, 1, 1, 2, 20.0),
    Sketcher.Constraint("DistanceY", -1, 1, 1, 3, 78.3),
    Sketcher.Constraint("DistanceX", -1, 1, 9, 3, 141.8),
])
sketch10.setExpression("Constraints[44]", "Params.sketch10_radius")
pocket3 = body.newObject("PartDesign::Pocket", "Pocket002")
pocket3.Profile = sketch10
pocket3.setExpression("Length", "Params.pocket3_length")

doc.recompute()
